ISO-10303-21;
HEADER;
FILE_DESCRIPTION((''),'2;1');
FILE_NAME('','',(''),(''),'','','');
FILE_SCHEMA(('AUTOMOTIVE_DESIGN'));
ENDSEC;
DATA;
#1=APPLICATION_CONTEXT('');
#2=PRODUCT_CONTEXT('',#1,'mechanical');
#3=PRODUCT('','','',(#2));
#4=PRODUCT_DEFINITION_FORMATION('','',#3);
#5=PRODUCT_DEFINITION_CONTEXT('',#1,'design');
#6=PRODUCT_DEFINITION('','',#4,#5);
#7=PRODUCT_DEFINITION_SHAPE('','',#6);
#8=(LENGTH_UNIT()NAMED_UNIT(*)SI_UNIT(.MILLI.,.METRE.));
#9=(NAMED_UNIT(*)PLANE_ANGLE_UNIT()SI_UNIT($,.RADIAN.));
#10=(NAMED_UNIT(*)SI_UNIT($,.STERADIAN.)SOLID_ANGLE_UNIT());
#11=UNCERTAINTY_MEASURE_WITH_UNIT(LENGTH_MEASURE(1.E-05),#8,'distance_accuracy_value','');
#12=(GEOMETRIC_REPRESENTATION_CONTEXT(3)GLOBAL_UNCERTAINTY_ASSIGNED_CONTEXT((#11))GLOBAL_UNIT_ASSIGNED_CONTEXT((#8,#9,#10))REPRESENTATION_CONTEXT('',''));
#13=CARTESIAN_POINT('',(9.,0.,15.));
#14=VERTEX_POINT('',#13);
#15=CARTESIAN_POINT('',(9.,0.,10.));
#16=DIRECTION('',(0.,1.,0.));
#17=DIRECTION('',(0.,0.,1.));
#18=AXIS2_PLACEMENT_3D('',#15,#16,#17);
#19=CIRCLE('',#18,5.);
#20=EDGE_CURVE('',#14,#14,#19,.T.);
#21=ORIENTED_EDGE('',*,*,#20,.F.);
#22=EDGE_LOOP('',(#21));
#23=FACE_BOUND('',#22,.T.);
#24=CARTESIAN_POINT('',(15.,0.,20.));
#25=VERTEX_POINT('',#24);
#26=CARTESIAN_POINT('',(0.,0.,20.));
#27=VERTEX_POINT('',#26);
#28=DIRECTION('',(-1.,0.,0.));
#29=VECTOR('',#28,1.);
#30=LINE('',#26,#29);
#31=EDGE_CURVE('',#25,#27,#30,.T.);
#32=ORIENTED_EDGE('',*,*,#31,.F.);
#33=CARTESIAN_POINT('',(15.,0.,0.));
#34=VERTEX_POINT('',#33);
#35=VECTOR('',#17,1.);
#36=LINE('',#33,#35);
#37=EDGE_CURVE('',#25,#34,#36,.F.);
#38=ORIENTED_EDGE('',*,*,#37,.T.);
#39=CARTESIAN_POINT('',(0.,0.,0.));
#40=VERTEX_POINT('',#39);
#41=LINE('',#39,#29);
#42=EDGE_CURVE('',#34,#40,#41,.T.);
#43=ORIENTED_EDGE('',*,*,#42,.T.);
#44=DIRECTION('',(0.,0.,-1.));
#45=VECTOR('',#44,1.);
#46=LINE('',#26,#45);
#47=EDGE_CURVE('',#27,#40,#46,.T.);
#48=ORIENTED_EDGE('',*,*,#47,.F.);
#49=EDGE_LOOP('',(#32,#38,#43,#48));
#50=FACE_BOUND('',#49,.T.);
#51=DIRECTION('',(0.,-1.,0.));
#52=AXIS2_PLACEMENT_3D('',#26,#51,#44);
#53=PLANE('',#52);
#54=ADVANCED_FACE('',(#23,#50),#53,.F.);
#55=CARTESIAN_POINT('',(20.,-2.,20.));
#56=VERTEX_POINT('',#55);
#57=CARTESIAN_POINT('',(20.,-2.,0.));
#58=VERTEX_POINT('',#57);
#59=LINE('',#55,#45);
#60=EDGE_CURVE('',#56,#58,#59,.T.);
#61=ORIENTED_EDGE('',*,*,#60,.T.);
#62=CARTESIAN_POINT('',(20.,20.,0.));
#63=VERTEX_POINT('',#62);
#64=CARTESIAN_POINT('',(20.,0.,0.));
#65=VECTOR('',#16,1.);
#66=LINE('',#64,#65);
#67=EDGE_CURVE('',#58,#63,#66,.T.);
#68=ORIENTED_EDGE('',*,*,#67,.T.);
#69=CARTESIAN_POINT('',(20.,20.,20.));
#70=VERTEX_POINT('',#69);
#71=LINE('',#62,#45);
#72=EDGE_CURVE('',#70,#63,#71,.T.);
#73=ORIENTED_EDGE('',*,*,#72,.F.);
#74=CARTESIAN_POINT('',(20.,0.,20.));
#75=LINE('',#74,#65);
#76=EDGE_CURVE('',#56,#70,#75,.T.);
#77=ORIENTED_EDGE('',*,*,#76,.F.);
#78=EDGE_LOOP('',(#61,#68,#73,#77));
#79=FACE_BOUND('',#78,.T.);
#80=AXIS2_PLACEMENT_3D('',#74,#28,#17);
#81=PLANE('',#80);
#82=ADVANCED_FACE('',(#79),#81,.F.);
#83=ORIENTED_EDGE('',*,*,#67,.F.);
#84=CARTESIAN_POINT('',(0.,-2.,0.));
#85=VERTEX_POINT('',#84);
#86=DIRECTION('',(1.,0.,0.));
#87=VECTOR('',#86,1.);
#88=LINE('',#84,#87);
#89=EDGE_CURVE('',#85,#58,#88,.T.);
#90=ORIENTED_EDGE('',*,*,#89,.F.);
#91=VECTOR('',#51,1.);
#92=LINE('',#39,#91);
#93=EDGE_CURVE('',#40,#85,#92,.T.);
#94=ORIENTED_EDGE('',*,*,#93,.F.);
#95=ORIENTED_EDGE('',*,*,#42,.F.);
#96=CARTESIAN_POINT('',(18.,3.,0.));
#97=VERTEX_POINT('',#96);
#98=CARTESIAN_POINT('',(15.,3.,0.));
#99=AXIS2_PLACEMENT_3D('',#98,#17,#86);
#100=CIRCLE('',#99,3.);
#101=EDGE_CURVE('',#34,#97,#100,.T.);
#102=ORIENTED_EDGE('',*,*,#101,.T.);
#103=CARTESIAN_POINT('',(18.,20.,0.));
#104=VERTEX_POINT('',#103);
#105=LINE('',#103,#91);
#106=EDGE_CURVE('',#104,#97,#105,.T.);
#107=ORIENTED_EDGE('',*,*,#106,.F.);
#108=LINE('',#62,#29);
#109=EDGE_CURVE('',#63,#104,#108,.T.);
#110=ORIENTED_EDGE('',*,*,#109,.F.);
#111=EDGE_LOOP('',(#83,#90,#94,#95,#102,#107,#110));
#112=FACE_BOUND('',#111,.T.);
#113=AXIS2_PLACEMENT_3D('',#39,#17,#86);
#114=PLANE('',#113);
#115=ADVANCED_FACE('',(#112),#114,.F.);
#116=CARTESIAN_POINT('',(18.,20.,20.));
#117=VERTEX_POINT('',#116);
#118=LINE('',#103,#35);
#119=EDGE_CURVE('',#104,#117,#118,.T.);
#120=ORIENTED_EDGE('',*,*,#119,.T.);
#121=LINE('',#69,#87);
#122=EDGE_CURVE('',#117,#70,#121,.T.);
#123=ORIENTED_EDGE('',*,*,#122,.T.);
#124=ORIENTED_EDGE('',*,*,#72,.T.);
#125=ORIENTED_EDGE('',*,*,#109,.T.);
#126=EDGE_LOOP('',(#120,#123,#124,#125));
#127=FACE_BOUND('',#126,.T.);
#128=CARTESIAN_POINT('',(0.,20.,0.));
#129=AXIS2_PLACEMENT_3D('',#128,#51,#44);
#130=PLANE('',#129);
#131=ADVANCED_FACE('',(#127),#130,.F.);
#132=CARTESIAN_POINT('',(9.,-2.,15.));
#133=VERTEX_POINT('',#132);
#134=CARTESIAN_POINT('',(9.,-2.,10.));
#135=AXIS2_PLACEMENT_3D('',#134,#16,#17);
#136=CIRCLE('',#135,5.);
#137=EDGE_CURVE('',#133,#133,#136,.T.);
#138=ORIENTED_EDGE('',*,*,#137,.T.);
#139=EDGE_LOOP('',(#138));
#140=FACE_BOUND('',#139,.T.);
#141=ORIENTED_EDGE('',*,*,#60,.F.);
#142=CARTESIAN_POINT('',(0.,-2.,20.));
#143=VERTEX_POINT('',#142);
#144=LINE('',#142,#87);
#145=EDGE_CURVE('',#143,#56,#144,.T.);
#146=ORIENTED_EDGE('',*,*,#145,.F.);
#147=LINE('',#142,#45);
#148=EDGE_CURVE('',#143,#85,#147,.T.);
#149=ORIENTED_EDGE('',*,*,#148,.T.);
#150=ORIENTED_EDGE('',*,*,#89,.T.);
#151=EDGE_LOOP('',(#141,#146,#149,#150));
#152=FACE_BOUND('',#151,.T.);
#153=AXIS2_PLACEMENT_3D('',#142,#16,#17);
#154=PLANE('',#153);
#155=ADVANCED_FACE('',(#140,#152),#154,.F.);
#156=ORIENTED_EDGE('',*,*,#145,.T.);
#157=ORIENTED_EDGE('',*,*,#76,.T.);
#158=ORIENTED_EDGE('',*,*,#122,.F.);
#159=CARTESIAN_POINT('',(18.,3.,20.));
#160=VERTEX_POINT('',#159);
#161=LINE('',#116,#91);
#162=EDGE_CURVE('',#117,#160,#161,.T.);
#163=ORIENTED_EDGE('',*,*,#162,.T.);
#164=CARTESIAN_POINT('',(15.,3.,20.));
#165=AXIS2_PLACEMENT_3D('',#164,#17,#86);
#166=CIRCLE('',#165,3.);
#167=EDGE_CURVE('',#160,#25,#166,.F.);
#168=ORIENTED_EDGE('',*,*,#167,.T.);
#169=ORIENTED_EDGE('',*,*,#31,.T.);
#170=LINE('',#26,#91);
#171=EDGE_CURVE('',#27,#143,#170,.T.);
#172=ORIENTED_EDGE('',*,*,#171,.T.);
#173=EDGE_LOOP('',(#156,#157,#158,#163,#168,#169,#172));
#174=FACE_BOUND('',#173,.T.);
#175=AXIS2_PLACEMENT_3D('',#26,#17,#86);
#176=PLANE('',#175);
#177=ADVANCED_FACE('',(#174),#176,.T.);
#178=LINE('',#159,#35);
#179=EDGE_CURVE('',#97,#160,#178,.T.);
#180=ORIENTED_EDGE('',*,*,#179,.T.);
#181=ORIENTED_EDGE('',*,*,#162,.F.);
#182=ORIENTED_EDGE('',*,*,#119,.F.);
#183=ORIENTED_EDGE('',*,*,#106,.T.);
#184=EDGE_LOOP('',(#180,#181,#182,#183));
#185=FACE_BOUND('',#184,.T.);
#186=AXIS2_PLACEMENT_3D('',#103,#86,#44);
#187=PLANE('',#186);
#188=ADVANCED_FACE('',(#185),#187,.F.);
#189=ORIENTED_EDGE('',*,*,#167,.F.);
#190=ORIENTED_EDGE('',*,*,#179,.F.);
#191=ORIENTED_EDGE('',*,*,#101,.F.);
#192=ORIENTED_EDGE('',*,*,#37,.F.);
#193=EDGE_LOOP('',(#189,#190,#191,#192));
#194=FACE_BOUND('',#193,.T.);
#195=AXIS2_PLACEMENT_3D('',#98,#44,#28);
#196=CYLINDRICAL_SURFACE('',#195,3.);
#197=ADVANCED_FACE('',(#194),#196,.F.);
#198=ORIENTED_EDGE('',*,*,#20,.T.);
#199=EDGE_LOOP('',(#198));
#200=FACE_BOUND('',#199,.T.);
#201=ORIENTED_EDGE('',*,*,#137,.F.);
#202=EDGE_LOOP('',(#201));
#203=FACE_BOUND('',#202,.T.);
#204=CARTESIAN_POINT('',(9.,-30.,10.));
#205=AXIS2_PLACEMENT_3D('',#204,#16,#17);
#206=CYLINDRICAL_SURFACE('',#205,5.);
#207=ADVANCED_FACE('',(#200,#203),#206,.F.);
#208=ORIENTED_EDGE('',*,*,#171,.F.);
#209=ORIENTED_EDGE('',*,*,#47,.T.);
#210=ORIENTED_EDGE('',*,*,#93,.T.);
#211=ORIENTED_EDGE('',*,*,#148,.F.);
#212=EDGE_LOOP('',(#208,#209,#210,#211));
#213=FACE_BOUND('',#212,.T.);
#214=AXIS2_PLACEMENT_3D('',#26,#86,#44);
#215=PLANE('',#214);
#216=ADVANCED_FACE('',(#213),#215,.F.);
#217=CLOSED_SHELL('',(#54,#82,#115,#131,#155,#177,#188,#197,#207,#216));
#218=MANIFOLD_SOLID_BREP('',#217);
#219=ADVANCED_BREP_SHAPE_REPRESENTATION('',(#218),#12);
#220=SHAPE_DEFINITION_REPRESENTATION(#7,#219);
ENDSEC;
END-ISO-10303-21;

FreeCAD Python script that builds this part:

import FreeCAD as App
import Part
import Sketcher
Q = App.Units.Quantity


def edges_at(feature, points):
    """Names of the edges that pass closest to the given points."""
    edges = feature.Shape.Edges
    near = lambda p: min(range(len(edges)), key=lambda i: edges[i].distToShape(Part.Vertex(*p))[0])
    return sorted({f"Edge{near(p) + 1}" for p in points})

doc = App.newDocument("Part")
body = doc.addObject("PartDesign::Body", "Body")

# Sketch on XY plane
sketch1 = body.newObject("Sketcher::SketchObject", "Sketch")
sketch1.AttachmentSupport = (doc.getObject("XY_Plane"), [""])
sketch1.MapMode = "FlatFace"
sketch1.addGeometry(Part.LineSegment(App.Vector(0, 0, 0), App.Vector(0, -2, 0)), False)
sketch1.addGeometry(Part.LineSegment(App.Vector(0, -2, 0), App.Vector(20, -2, 0)), False)
sketch1.addGeometry(Part.LineSegment(App.Vector(20, -2, 0), App.Vector(20, 0, 0)), False)
sketch1.addGeometry(Part.LineSegment(App.Vector(20, 0, 0), App.Vector(0, 0, 0)), False)
sketch1.addConstraint(Sketcher.Constraint("Coincident", 0, 2, 1, 1))
sketch1.addConstraint(Sketcher.Constraint("Coincident", 1, 2, 2, 1))
sketch1.addConstraint(Sketcher.Constraint("Coincident", 2, 2, 3, 1))
sketch1.addConstraint(Sketcher.Constraint("Coincident", 3, 2, 0, 1))
sketch1.addConstraint(Sketcher.Constraint("Vertical", 0))
sketch1.addConstraint(Sketcher.Constraint("Horizontal", 1))
sketch1.addConstraint(Sketcher.Constraint("Vertical", 2))
sketch1.addConstraint(Sketcher.Constraint("Horizontal", 3))
sketch1.addConstraint(Sketcher.Constraint("Coincident", 3, 2, -1, 1))
sketch1.addConstraint(Sketcher.Constraint("DistanceX", 1, 1, 1, 2, Q("20 mm")))
sketch1.addConstraint(Sketcher.Constraint("DistanceY", 0, 2, 0, 1, Q("2 mm")))
pad1 = body.newObject("PartDesign::Pad", "Pad")
pad1.Profile = sketch1
pad1.Length = 20

# Sketch on XZ plane
sketch2 = body.newObject("Sketcher::SketchObject", "Sketch001")
sketch2.AttachmentSupport = (doc.getObject("XZ_Plane"), [""])
sketch2.MapMode = "FlatFace"
sketch2.addGeometry(Part.LineSegment(App.Vector(18, 0, 0), App.Vector(18, 20, 0)), False)
sketch2.addGeometry(Part.LineSegment(App.Vector(18, 20, 0), App.Vector(20, 20, 0)), False)
sketch2.addGeometry(Part.LineSegment(App.Vector(20, 20, 0), App.Vector(20, 0, 0)), False)
sketch2.addGeometry(Part.LineSegment(App.Vector(20, 0, 0), App.Vector(18, 0, 0)), False)
sketch2.addConstraint(Sketcher.Constraint("Coincident", 0, 2, 1, 1))
sketch2.addConstraint(Sketcher.Constraint("Coincident", 1, 2, 2, 1))
sketch2.addConstraint(Sketcher.Constraint("Coincident", 2, 2, 3, 1))
sketch2.addConstraint(Sketcher.Constraint("Coincident", 3, 2, 0, 1))
sketch2.addConstraint(Sketcher.Constraint("Vertical", 0))
sketch2.addConstraint(Sketcher.Constraint("Horizontal", 1))
sketch2.addConstraint(Sketcher.Constraint("Vertical", 2))
sketch2.addConstraint(Sketcher.Constraint("Horizontal", 3))
sketch2.addConstraint(Sketcher.Constraint("PointOnObject", 2, 2, -1))
sketch2.addConstraint(Sketcher.Constraint("DistanceX", 1, 1, 1, 2, Q("2 mm")))
sketch2.addConstraint(Sketcher.Constraint("DistanceY", 0, 1, 0, 2, Q("20 mm")))
sketch2.addConstraint(Sketcher.Constraint("DistanceX", -1, 1, 0, 2, Q("18 mm")))
pad2 = body.newObject("PartDesign::Pad", "Pad001")
pad2.Profile = sketch2
pad2.Length = 20
pad2.Reversed = True

# Sketch on XZ plane
sketch3 = body.newObject("Sketcher::SketchObject", "Sketch002")
sketch3.AttachmentSupport = (doc.getObject("XZ_Plane"), [""])
sketch3.MapMode = "FlatFace"
sketch3.addGeometry(Part.Circle(App.Vector(9, 10, 0), App.Vector(0, 0, 1), 5), False)
sketch3.addConstraint(Sketcher.Constraint("Diameter", 0, Q("10 mm")))
sketch3.addConstraint(Sketcher.Constraint("DistanceX", -1, 1, 0, 3, Q("9 mm")))
sketch3.addConstraint(Sketcher.Constraint("DistanceY", -1, 1, 0, 3, Q("10 mm")))
pocket1 = body.newObject("PartDesign::Pocket", "Pocket")
pocket1.Profile = sketch3
pocket1.Length = 30
pocket1.Reversed = True
doc.recompute()

fillet = body.newObject("PartDesign::Fillet", "Fillet")
fillet.Base = (pocket1, edges_at(pocket1, [(18, 0, 10)]))
fillet.Radius = 3

doc.recompute()
